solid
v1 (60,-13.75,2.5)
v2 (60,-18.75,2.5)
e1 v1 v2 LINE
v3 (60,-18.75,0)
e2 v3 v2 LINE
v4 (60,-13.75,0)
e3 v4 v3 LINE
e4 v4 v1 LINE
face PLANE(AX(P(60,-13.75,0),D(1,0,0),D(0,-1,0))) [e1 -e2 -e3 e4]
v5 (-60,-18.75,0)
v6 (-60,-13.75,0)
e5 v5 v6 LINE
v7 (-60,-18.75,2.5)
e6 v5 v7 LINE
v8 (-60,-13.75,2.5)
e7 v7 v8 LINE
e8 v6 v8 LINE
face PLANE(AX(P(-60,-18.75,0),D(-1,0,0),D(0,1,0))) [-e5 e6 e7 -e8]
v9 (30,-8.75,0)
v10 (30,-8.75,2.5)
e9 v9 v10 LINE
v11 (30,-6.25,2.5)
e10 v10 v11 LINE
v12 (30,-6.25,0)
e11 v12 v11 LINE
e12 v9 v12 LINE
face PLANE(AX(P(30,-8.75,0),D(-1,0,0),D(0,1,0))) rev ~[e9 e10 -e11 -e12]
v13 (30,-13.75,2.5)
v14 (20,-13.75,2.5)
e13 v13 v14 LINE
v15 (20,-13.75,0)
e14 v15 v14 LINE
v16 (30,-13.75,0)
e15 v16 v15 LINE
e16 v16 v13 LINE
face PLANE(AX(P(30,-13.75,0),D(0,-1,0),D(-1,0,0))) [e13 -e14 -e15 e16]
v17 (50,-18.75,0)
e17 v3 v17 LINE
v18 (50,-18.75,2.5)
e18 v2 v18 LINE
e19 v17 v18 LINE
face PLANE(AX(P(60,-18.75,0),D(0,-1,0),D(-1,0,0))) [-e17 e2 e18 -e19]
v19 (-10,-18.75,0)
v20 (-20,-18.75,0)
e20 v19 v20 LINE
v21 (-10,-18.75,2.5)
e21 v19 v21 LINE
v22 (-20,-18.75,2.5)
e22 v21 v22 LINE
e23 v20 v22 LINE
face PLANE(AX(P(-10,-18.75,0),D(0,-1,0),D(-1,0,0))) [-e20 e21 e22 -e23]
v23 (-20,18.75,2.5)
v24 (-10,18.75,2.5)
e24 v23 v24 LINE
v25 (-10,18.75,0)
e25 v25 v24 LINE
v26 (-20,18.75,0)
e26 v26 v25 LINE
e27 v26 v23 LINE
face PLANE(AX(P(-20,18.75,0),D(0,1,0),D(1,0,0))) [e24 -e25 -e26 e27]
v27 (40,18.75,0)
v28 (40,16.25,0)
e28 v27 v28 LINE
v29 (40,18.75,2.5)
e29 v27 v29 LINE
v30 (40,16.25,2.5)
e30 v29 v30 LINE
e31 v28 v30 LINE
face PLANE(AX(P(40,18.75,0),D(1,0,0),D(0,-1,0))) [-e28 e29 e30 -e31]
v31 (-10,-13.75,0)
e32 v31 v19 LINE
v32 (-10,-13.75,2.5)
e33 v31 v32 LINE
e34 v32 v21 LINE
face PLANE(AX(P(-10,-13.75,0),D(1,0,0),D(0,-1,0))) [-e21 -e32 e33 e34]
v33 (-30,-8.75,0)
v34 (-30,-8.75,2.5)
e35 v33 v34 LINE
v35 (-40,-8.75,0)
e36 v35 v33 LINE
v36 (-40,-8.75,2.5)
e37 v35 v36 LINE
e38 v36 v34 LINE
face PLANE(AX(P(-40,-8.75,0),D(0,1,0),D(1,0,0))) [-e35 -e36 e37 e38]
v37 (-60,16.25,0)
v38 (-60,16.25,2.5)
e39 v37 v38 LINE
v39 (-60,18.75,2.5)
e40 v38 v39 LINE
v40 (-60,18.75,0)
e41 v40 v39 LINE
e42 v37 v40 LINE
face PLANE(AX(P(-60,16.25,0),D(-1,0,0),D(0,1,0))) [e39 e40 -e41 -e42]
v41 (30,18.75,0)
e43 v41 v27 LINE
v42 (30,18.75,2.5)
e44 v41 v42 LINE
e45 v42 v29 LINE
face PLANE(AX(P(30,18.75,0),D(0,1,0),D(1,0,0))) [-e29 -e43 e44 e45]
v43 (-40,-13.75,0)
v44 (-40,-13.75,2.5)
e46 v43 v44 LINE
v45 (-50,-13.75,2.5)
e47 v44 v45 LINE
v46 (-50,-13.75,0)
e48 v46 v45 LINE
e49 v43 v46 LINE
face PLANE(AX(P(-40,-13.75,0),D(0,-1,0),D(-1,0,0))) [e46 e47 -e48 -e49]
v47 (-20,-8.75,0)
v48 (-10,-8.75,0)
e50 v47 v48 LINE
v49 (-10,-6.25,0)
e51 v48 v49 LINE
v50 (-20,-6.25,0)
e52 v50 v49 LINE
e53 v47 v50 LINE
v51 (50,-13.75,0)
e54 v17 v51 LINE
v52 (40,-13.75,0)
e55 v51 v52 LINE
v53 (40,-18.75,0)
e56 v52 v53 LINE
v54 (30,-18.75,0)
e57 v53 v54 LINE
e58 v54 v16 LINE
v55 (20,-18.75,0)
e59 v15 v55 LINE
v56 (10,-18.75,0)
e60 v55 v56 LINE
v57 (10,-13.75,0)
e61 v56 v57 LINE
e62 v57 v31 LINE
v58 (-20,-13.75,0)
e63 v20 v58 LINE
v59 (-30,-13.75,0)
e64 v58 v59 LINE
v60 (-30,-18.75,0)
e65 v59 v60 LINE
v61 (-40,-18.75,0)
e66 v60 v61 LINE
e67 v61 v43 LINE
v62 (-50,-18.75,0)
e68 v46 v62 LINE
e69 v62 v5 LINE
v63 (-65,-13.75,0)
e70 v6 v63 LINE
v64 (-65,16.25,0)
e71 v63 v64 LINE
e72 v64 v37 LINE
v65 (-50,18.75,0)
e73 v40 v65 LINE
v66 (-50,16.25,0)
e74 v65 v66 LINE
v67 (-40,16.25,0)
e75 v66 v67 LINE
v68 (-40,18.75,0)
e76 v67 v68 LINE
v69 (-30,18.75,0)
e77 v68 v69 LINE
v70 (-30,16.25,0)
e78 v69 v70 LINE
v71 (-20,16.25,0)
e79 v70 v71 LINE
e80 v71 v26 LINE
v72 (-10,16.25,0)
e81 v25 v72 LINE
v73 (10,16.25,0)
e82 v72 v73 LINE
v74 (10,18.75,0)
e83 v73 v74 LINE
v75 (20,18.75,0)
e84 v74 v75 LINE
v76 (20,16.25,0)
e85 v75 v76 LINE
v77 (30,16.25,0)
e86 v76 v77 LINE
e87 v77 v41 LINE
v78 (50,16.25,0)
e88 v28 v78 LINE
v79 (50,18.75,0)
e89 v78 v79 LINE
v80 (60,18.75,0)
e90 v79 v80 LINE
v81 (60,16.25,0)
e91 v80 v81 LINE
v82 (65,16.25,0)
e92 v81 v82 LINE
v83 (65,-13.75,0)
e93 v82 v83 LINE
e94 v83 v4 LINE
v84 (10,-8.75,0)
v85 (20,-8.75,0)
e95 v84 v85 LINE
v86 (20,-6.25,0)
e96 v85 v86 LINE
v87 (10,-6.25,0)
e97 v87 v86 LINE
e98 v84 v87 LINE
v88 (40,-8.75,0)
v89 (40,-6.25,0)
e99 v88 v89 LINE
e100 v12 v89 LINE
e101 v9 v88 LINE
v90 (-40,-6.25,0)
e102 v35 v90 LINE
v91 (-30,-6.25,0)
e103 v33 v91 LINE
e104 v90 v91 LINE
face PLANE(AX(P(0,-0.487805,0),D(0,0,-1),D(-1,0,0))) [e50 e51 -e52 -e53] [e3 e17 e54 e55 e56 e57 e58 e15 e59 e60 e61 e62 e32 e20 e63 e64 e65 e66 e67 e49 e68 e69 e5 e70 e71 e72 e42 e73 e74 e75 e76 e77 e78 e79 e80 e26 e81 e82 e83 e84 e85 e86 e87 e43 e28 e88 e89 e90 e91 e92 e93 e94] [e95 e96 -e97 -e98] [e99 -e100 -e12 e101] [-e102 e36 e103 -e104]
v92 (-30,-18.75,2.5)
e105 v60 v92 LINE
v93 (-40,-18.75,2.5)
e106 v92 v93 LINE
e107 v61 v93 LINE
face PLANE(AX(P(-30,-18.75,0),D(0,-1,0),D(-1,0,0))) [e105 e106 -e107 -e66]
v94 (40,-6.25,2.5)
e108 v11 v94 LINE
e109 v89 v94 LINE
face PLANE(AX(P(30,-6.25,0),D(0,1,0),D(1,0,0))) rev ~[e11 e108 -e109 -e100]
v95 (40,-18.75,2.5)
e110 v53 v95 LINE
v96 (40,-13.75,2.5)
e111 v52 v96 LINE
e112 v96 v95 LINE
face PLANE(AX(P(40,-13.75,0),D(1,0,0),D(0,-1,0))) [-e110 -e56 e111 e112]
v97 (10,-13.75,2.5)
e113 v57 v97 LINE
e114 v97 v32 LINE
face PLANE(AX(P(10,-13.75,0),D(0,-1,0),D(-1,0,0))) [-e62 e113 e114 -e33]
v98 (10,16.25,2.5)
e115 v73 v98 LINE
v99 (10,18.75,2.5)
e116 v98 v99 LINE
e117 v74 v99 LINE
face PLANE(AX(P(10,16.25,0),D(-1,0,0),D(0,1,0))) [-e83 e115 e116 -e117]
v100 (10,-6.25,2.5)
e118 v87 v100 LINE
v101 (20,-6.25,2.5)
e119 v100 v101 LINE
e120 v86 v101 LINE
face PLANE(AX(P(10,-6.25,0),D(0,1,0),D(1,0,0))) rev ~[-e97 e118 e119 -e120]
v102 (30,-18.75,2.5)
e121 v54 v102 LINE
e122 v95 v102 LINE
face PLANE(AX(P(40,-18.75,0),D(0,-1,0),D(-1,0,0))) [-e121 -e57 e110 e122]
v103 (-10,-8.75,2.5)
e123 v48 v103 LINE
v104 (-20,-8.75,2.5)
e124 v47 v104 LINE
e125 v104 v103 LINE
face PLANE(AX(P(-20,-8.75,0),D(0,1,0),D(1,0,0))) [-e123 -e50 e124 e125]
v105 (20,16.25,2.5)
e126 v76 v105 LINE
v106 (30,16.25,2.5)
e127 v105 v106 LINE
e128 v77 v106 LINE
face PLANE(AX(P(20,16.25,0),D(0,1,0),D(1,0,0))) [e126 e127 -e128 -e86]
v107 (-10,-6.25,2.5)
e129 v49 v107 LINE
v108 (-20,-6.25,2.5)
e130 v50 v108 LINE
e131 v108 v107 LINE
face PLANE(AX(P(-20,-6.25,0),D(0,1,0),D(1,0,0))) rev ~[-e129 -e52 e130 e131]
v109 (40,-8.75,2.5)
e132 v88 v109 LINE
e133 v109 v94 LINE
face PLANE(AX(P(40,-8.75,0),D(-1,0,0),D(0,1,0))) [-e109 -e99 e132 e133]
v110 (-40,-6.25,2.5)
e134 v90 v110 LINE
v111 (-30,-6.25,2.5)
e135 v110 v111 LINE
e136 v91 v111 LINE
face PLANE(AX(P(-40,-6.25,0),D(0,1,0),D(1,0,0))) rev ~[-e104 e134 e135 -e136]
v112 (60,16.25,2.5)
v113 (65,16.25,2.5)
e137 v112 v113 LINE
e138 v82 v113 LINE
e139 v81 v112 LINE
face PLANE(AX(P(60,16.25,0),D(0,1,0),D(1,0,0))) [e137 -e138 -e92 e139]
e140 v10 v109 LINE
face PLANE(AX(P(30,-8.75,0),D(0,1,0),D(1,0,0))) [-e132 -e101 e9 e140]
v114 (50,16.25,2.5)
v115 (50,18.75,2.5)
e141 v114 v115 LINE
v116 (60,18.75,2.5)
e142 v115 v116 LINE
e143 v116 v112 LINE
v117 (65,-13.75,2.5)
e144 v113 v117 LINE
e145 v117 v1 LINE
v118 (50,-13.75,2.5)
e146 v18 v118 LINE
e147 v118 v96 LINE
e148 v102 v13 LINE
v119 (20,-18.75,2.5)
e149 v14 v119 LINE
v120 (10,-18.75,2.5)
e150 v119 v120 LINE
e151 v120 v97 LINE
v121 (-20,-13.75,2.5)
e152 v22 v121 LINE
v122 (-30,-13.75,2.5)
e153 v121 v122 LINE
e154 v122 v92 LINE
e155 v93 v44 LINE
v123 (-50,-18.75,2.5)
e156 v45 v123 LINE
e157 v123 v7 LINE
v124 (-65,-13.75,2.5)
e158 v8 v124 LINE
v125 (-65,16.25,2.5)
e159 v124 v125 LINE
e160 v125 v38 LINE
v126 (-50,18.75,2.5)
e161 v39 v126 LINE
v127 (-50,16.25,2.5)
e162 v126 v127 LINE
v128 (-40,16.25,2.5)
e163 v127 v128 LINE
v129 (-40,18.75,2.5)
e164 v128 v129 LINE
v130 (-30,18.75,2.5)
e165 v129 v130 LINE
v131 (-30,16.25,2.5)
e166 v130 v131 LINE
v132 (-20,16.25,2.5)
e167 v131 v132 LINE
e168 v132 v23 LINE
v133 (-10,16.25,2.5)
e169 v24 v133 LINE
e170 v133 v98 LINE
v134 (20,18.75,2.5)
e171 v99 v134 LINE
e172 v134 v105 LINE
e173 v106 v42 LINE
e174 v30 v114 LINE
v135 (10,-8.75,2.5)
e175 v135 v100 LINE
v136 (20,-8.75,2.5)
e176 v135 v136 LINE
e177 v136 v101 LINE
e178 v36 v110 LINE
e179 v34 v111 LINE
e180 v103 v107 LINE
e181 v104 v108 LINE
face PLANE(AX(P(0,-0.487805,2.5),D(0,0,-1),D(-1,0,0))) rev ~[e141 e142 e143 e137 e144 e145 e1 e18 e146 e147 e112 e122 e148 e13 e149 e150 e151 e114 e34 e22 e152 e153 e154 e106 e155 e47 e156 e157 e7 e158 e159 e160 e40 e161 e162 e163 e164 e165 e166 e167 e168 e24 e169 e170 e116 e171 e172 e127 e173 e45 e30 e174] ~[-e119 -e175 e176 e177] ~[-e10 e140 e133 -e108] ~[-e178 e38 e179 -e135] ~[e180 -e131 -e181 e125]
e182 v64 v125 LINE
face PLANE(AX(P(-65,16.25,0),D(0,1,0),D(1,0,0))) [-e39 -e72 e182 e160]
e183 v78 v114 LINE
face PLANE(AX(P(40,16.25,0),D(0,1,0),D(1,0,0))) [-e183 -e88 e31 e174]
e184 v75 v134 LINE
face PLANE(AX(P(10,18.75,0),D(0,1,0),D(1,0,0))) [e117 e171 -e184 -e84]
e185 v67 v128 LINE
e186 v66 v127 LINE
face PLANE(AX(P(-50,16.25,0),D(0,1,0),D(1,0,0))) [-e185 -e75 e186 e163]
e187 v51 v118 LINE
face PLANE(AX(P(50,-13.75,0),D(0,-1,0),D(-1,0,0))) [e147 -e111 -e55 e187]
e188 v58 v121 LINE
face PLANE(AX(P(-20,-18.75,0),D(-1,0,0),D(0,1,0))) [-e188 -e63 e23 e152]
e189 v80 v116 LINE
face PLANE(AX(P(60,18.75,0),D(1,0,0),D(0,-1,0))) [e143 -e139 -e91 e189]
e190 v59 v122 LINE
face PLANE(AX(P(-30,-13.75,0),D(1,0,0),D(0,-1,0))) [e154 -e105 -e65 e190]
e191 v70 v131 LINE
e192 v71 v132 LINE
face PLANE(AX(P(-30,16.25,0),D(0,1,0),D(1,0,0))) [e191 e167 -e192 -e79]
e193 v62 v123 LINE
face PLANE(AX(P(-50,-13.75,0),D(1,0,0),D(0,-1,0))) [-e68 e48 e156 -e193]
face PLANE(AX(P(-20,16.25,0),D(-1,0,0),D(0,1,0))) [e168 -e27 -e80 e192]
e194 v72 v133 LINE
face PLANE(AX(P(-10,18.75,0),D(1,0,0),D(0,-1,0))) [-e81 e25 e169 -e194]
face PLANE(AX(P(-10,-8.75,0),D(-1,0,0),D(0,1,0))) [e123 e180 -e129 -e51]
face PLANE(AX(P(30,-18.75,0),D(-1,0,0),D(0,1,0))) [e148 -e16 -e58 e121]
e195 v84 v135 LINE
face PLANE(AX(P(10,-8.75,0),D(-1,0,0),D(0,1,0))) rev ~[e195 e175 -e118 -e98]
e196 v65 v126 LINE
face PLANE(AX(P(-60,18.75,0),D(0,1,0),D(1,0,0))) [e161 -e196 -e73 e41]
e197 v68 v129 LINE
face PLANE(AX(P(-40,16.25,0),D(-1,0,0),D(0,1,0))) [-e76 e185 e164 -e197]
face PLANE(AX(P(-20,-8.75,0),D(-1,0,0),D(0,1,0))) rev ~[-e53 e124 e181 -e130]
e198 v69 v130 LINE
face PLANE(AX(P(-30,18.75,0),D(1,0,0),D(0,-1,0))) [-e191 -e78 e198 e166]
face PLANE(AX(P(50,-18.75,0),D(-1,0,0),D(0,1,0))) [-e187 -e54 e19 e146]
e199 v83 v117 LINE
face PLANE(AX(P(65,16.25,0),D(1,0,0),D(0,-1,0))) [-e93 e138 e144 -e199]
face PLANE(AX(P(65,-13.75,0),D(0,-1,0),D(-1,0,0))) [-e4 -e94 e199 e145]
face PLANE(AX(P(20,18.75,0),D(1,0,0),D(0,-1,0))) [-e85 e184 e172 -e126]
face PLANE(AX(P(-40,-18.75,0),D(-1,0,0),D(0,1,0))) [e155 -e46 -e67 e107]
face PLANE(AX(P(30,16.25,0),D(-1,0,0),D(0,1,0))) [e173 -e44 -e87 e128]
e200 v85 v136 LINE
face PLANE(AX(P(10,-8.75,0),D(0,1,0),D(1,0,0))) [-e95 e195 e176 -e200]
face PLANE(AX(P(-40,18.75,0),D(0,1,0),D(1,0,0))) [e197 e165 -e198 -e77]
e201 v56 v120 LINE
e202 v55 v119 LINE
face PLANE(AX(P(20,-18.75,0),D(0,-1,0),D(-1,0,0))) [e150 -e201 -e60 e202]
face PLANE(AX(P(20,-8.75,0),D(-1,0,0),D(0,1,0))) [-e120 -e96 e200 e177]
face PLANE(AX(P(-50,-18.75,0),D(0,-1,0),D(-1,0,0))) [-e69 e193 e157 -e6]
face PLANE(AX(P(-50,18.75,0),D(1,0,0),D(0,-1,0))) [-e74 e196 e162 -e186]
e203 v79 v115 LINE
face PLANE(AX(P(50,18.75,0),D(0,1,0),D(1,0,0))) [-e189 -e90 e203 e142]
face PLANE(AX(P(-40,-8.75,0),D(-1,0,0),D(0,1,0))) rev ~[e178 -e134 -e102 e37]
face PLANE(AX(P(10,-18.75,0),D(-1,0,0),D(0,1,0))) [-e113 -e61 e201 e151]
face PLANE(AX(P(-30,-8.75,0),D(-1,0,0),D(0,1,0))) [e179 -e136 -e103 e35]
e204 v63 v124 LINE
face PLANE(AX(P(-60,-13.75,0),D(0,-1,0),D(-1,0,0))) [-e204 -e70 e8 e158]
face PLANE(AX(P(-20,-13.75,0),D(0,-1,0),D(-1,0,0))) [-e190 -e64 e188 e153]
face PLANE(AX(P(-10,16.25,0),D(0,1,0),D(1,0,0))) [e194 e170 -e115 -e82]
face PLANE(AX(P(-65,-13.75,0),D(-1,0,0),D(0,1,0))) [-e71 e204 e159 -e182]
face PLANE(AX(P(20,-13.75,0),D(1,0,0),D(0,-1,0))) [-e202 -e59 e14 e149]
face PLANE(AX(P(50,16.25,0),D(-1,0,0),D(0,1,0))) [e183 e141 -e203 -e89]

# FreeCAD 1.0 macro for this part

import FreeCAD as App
import Part
import Sketcher
from FreeCAD import Vector


def add_polygon(sketch, points):
    """Adds a closed chain of lines whose ends are joined by coincident constraints."""
    first, n = sketch.GeometryCount, len(points)
    for a, b in zip(points, points[1:] + points[:1]):
        sketch.addGeometry(Part.LineSegment(App.Vector(*a, 0), App.Vector(*b, 0)), False)
    for i in range(n):
        sketch.addConstraint(Sketcher.Constraint("Coincident", first + i, 2, first + (i + 1) % n, 1))

doc = App.newDocument("Part")
body = doc.addObject("PartDesign::Body", "Body")

# Sketch on XY plane
sketch1 = body.newObject("Sketcher::SketchObject", "Sketch")
sketch1.AttachmentSupport = (doc.getObject("XY_Plane"), [""])
sketch1.MapMode = "FlatFace"
add_polygon(sketch1, [(60, -13.8), (65, -13.8), (65, 16.2), (60, 16.2), (60, 18.8), (50, 18.8), (50, 16.2), (40, 16.2), (40, 18.8), (30, 18.8), (30, 16.2), (20, 16.2), (20, 18.8), (10, 18.8), (10, 16.2), (-10, 16.2), (-10, 18.8), (-20, 18.8), (-20, 16.2), (-30, 16.2), (-30, 18.8), (-40, 18.8), (-40, 16.2), (-50, 16.2), (-50, 18.8), (-60, 18.8), (-60, 16.2), (-65, 16.2), (-65, -13.8), (-60, -13.8), (-60, -18.8), (-50, -18.8), (-50, -13.8), (-40, -13.8), (-40, -18.8), (-30, -18.8), (-30, -13.8), (-20, -13.8), (-20, -18.8), (-10, -18.8), (-10, -13.8), (10, -13.8), (10, -18.8), (20, -18.8), (20, -13.8), (30, -13.8), (30, -18.8), (40, -18.8), (40, -13.8), (50, -13.8), (50, -18.8), (60, -18.8)])  # lines 0-51
add_polygon(sketch1, [(30, -8.8), (30, -6.2), (40, -6.2), (40, -8.8)])  # lines 52-55
add_polygon(sketch1, [(10, -8.8), (10, -6.2), (20, -6.2), (20, -8.8)])  # lines 56-59
add_polygon(sketch1, [(-20, -8.8), (-20, -6.2), (-10, -6.2), (-10, -8.8)])  # lines 60-63
add_polygon(sketch1, [(-40, -8.8), (-40, -6.2), (-30, -6.2), (-30, -8.8)])  # lines 64-67
sketch1.addConstraint([
    Sketcher.Constraint("Horizontal", 0),
    Sketcher.Constraint("Vertical", 1),
    Sketcher.Constraint("Horizontal", 2),
    Sketcher.Constraint("Vertical", 3),
    Sketcher.Constraint("Horizontal", 4),
    Sketcher.Constraint("Vertical", 5),
    Sketcher.Constraint("Horizontal", 6),
    Sketcher.Constraint("Vertical", 7),
    Sketcher.Constraint("Horizontal", 8),
    Sketcher.Constraint("Vertical", 9),
    Sketcher.Constraint("Horizontal", 10),
    Sketcher.Constraint("Vertical", 11),
    Sketcher.Constraint("Horizontal", 12),
    Sketcher.Constraint("Vertical", 13),
    Sketcher.Constraint("Horizontal", 14),
    Sketcher.Constraint("Vertical", 15),
    Sketcher.Constraint("Horizontal", 16),
    Sketcher.Constraint("Vertical", 17),
    Sketcher.Constraint("Horizontal", 18),
    Sketcher.Constraint("Vertical", 19),
    Sketcher.Constraint("Horizontal", 20),
    Sketcher.Constraint("Vertical", 21),
    Sketcher.Constraint("Horizontal", 22),
    Sketcher.Constraint("Vertical", 23),
    Sketcher.Constraint("Horizontal", 24),
    Sketcher.Constraint("Vertical", 25),
    Sketcher.Constraint("Horizontal", 26),
    Sketcher.Constraint("Vertical", 27),
    Sketcher.Constraint("Horizontal", 28),
    Sketcher.Constraint("Vertical", 29),
    Sketcher.Constraint("Horizontal", 30),
    Sketcher.Constraint("Vertical", 31),
    Sketcher.Constraint("Horizontal", 32),
    Sketcher.Constraint("Vertical", 33),
    Sketcher.Constraint("Horizontal", 34),
    Sketcher.Constraint("Vertical", 35),
    Sketcher.Constraint("Horizontal", 36),
    Sketcher.Constraint("Vertical", 37),
    Sketcher.Constraint("Horizontal", 38),
    Sketcher.Constraint("Vertical", 39),
    Sketcher.Constraint("Horizontal", 40),
    Sketcher.Constraint("Vertical", 41),
    Sketcher.Constraint("Horizontal", 42),
    Sketcher.Constraint("Vertical", 43),
    Sketcher.Constraint("Horizontal", 44),
    Sketcher.Constraint("Vertical", 45),
    Sketcher.Constraint("Horizontal", 46),
    Sketcher.Constraint("Vertical", 47),
    Sketcher.Constraint("Horizontal", 48),
    Sketcher.Constraint("Vertical", 49),
    Sketcher.Constraint("Horizontal", 50),
    Sketcher.Constraint("Vertical", 51),
    Sketcher.Constraint("Vertical", 52),
    Sketcher.Constraint("Horizontal", 53),
    Sketcher.Constraint("Vertical", 54),
    Sketcher.Constraint("Horizontal", 55),
    Sketcher.Constraint("Vertical", 56),
    Sketcher.Constraint("Horizontal", 57),
    Sketcher.Constraint("Vertical", 58),
    Sketcher.Constraint("Horizontal", 59),
    Sketcher.Constraint("Vertical", 60),
    Sketcher.Constraint("Horizontal", 61),
    Sketcher.Constraint("Vertical", 62),
    Sketcher.Constraint("Horizontal", 63),
    Sketcher.Constraint("Vertical", 64),
    Sketcher.Constraint("Horizontal", 65),
    Sketcher.Constraint("Vertical", 66),
    Sketcher.Constraint("Horizontal", 67),
    Sketcher.Constraint("Symmetric", 3, 2, 29, 2, -1, 1),
    Sketcher.Constraint("Symmetric", 7, 2, 33, 2, -1, 1),
    Sketcher.Constraint("Symmetric", 11, 2, 37, 2, -1, 1),
    Sketcher.Constraint("Symmetric", 15, 2, 41, 2, -1, 1),
    Sketcher.Constraint("Symmetric", 19, 2, 45, 2, -1, 1),
    Sketcher.Constraint("Symmetric", 23, 2, 49, 2, -1, 1),
    Sketcher.Constraint("Symmetric", 12, 2, 15, 2, -2),
    Sketcher.Constraint("Symmetric", 10, 2, 17, 2, -2),
    Sketcher.Constraint("Symmetric", 8, 2, 19, 2, -2),
    Sketcher.Constraint("Symmetric", 6, 2, 21, 2, -2),
    Sketcher.Constraint("Symmetric", 4, 2, 23, 2, -2),
    Sketcher.Constraint("Symmetric", 2, 2, 25, 2, -2),
    Sketcher.Constraint("Symmetric", 0, 2, 27, 2, -2),
    Sketcher.Constraint("Symmetric", 36, 2, 43, 2, -2),
    Sketcher.Constraint("Symmetric", 32, 2, 47, 2, -2),
    Sketcher.Constraint("Symmetric", 57, 2, 60, 2, -2),
    Sketcher.Constraint("Symmetric", 59, 2, 62, 2, -2),
    Sketcher.Constraint("Symmetric", 53, 2, 64, 2, -2),
    Sketcher.Constraint("Symmetric", 55, 2, 66, 2, -2),
    Sketcher.Constraint("Horizontal", 2, 2, 5, 2),
    Sketcher.Constraint("Horizontal", 4, 2, 7, 2),
    Sketcher.Constraint("Horizontal", 6, 2, 9, 2),
    Sketcher.Constraint("Horizontal", 8, 2, 11, 2),
    Sketcher.Constraint("Horizontal", 10, 2, 13, 2),
    Sketcher.Constraint("Horizontal", 28, 2, 31, 2),
    Sketcher.Constraint("Horizontal", 32, 2, 35, 2),
    Sketcher.Constraint("Horizontal", 36, 2, 39, 2),
    Sketcher.Constraint("Horizontal", 53, 2, 56, 2),
    Sketcher.Constraint("Horizontal", 55, 2, 58, 2),
    Sketcher.Constraint("Vertical", 23, 2, 30, 2),
    Sketcher.Constraint("Vertical", 19, 2, 34, 2),
    Sketcher.Constraint("Vertical", 15, 2, 38, 2),
    Sketcher.Constraint("Vertical", 3, 2, 50, 2),
    Sketcher.Constraint("Vertical", 45, 2, 52, 2),
    Sketcher.Constraint("Vertical", 47, 2, 53, 2),
    Sketcher.Constraint("Vertical", 41, 2, 56, 2),
    Sketcher.Constraint("Vertical", 43, 2, 57, 2),
    Sketcher.Constraint("Equal", 4, 6),
    Sketcher.Constraint("Equal", 6, 8),
    Sketcher.Constraint("Equal", 8, 10),
    Sketcher.Constraint("Equal", 10, 12),
    Sketcher.Constraint("Equal", 28, 29),
    Sketcher.Constraint("Equal", 25, 52),
    Sketcher.Constraint("DistanceX", 0, 1, 0, 2, 5.0),
    Sketcher.Constraint("DistanceX", 4, 2, 4, 1, 10.0),
    Sketcher.Constraint("DistanceX", 14, 2, 14, 1, 20.0),
    Sketcher.Constraint("DistanceY", 1, 1, 1, 2, 30.0),
    Sketcher.Constraint("DistanceY", 3, 1, 3, 2, 2.5),
    Sketcher.Constraint("DistanceY", 52, 2, -1, 1, 6.25),
])
pad1 = body.newObject("PartDesign::Pad", "Pad")
pad1.Profile = sketch1
pad1.Length = 2.5

doc.recompute()
